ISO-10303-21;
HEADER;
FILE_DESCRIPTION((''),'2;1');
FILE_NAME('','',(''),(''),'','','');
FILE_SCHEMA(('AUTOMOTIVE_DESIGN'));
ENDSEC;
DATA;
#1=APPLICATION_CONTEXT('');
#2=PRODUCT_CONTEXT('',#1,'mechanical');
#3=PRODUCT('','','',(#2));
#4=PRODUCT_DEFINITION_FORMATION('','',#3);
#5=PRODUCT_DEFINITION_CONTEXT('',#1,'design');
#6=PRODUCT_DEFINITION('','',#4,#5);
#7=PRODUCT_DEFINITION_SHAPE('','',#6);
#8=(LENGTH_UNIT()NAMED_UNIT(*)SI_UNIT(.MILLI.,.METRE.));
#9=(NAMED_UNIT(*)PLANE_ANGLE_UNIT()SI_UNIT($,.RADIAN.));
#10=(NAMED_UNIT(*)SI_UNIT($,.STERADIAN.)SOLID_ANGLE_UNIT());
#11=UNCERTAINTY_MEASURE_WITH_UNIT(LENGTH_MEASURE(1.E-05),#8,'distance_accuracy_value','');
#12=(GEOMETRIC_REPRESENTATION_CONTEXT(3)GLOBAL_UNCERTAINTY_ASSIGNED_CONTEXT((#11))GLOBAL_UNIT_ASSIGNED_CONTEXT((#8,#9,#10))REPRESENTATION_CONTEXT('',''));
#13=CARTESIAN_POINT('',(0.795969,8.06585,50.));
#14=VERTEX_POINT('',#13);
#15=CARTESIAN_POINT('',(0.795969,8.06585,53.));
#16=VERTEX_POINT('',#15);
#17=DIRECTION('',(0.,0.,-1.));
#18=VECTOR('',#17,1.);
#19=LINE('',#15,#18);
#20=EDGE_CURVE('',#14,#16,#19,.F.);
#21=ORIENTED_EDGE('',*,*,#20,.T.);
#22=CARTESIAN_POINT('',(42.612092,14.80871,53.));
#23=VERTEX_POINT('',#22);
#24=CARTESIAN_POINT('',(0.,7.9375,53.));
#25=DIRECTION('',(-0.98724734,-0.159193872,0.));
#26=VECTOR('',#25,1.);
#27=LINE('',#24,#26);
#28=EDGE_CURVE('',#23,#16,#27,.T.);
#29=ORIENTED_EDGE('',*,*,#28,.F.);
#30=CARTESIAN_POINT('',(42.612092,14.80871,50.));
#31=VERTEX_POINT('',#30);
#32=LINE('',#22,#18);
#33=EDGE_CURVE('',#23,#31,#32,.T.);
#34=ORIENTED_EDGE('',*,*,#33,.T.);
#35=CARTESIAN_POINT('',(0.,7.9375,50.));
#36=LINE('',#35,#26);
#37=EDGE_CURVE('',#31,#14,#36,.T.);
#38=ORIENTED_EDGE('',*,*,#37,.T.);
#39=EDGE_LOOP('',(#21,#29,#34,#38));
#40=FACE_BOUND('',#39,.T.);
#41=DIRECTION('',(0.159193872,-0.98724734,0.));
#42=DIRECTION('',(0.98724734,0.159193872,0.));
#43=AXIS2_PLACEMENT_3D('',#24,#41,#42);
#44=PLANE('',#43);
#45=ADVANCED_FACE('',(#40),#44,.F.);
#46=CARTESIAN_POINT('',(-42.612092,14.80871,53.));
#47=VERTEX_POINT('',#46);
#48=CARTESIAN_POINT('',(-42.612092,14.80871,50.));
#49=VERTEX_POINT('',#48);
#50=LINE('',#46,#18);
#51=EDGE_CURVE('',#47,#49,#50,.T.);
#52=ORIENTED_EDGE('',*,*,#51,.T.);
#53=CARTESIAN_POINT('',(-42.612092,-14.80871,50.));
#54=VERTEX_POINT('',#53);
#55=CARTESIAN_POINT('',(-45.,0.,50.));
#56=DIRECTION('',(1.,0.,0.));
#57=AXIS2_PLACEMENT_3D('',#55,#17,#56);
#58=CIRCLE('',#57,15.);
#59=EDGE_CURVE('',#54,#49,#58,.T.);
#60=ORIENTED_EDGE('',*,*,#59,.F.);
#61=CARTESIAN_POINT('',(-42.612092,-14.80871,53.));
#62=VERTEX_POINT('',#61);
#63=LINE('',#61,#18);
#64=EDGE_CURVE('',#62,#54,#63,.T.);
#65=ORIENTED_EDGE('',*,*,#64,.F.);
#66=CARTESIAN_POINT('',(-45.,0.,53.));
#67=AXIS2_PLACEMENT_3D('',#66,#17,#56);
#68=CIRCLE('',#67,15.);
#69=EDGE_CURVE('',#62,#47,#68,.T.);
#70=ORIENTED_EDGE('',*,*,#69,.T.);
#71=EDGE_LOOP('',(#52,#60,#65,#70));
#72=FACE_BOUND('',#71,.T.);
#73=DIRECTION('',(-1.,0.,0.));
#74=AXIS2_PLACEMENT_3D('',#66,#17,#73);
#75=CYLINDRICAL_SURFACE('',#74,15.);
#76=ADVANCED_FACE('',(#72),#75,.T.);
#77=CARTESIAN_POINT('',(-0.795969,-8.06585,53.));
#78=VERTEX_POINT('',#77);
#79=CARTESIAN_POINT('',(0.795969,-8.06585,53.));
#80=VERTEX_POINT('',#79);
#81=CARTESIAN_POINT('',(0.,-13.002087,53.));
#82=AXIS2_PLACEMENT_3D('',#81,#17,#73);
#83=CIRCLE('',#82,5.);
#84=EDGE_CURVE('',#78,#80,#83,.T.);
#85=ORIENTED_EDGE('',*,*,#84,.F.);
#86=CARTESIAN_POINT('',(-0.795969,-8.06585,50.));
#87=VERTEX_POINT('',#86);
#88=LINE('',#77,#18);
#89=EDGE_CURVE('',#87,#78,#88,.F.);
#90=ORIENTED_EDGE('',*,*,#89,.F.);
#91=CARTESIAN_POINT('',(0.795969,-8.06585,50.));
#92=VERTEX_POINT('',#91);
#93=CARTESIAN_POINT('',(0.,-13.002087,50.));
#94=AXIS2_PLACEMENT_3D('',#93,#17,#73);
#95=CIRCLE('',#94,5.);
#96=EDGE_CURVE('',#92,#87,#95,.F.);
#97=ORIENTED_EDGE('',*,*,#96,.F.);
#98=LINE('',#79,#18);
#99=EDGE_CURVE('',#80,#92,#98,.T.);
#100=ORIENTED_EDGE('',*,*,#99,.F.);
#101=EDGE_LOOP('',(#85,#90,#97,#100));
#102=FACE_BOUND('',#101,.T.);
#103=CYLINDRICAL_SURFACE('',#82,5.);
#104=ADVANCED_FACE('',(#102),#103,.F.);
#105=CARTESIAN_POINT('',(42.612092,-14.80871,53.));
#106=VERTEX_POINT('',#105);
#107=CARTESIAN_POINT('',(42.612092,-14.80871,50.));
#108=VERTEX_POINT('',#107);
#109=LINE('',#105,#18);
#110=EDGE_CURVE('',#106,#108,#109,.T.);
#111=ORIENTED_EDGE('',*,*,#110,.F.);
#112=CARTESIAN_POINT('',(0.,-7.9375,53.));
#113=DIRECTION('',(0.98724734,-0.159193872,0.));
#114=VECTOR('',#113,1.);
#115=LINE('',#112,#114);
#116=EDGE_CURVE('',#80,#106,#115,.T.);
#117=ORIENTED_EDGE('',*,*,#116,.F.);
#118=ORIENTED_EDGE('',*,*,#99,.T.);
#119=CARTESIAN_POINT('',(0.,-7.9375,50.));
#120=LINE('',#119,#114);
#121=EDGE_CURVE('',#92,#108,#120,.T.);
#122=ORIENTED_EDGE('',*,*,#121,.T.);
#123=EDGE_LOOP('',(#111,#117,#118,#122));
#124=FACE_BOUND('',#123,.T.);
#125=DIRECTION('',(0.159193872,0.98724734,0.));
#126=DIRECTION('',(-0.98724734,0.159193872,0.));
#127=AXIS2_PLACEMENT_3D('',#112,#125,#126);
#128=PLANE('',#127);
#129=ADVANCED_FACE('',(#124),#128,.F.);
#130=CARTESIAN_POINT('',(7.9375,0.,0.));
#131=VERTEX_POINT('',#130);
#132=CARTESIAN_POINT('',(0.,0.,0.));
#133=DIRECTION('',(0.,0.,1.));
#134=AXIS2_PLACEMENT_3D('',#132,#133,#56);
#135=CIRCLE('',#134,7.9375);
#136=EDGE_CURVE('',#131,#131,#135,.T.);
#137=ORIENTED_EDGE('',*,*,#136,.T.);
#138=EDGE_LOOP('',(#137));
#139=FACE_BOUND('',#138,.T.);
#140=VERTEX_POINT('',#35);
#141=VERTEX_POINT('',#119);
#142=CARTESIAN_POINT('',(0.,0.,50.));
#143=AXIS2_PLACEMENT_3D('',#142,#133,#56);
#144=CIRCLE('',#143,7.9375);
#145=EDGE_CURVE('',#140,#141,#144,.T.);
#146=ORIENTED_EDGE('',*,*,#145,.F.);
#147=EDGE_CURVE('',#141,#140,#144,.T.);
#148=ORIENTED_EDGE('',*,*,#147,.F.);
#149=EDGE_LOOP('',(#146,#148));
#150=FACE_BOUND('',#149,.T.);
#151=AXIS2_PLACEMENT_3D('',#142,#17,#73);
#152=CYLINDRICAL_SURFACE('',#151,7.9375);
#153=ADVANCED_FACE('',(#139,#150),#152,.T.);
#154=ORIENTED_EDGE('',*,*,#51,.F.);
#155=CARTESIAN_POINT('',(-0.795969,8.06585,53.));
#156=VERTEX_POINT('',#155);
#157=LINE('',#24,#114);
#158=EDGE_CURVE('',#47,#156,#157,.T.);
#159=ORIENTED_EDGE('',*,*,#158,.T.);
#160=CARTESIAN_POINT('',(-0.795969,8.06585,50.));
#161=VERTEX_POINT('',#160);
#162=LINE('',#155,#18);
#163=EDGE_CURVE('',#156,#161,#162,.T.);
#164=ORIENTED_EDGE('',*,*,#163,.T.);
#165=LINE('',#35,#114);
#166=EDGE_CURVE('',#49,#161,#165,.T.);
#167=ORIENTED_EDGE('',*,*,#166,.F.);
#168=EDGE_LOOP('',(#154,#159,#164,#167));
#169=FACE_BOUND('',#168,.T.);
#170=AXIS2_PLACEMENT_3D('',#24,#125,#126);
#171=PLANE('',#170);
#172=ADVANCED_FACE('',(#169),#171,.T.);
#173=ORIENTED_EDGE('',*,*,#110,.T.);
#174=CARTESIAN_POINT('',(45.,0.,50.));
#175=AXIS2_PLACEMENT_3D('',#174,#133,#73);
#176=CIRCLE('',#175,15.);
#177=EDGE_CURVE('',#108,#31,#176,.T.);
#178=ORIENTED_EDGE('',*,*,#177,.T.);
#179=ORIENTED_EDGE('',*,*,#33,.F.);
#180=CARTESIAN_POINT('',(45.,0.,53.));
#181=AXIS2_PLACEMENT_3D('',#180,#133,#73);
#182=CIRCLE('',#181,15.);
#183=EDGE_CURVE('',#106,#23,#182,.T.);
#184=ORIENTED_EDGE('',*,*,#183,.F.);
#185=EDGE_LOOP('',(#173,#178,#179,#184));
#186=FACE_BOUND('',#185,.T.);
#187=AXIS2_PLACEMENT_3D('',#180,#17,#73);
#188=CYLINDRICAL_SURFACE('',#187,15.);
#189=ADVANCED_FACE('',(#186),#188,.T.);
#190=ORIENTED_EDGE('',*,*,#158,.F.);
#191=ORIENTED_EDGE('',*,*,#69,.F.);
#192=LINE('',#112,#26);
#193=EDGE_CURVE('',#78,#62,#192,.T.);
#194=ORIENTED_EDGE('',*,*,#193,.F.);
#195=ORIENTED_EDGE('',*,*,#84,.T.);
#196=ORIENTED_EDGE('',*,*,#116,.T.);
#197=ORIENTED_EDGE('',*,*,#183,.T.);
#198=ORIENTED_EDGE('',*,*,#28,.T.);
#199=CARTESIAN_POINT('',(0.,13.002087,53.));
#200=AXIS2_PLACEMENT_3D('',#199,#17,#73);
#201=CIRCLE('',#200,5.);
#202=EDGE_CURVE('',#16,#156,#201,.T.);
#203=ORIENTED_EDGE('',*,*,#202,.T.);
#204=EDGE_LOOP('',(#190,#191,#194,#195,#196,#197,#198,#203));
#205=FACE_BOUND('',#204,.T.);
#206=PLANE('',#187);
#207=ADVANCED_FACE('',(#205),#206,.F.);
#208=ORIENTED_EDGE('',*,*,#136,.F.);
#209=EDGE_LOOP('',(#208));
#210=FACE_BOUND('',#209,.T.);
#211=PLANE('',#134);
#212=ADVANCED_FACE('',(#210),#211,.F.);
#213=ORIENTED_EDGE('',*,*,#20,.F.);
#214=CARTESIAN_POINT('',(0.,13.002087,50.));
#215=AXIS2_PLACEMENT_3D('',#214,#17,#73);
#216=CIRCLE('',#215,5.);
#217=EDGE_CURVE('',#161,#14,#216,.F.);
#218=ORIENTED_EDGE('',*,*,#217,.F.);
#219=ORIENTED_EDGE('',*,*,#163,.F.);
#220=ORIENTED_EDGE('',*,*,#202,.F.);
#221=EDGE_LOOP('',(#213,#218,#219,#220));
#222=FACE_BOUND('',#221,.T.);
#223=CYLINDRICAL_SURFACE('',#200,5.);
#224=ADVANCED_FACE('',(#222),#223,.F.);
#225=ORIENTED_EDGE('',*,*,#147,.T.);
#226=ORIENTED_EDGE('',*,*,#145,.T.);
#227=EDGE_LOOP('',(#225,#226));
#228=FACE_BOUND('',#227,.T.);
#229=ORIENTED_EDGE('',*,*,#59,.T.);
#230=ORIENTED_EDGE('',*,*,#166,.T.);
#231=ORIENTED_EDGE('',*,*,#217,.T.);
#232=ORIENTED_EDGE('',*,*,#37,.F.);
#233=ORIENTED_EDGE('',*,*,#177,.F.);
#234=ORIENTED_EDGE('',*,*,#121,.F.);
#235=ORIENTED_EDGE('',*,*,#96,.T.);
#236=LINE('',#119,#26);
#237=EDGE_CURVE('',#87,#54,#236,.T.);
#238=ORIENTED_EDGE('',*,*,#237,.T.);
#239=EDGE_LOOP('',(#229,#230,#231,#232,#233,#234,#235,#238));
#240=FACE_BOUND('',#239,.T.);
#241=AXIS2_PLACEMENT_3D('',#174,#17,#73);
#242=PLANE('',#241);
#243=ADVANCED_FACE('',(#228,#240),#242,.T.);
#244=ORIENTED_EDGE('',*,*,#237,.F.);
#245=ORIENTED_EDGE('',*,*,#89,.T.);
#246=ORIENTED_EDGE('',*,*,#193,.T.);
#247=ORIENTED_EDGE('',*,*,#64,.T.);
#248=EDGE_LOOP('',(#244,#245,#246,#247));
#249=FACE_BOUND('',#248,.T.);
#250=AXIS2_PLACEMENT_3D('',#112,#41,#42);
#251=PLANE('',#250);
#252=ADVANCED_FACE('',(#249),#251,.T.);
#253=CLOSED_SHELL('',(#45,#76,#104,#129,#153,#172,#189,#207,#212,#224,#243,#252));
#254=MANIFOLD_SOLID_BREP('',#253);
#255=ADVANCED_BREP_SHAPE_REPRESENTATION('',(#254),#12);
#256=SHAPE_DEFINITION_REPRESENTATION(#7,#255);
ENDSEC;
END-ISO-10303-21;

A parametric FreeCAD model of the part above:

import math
import FreeCAD as App
import Part
import Sketcher

V = App.Vector
Q = App.Units.Quantity


def edges_at(feature, points):
    """Names of the edges that pass closest to the given points."""
    edges = feature.Shape.Edges
    near = lambda p: min(range(len(edges)), key=lambda i: edges[i].distToShape(Part.Vertex(*p))[0])
    return sorted({f"Edge{near(p) + 1}" for p in points})

doc = App.newDocument("Part")
body = doc.addObject("PartDesign::Body", "Body")

# Sketch on XY plane
sketch1 = doc.addObject("Sketcher::SketchObject", "Sketch")
body.addObject(sketch1)
sketch1.AttachmentSupport = (doc.XY_Plane, [""])
sketch1.MapMode = "FlatFace"
sketch1.addGeometry(Part.Circle(V(0, 0, 0), V(0, 0, 1), 8), False)
sketch1.addConstraint(Sketcher.Constraint("Coincident", 0, 3, -1, 1))
sketch1.addConstraint(Sketcher.Constraint("Diameter", 0, Q("15.875 mm")))
pad1 = doc.addObject("PartDesign::Pad", "Pad")
body.addObject(pad1)
pad1.Profile = sketch1
pad1.Length = 50

# Sketch on XY plane
sketch2 = doc.addObject("Sketcher::SketchObject", "Sketch001")
body.addObject(sketch2)
sketch2.AttachmentSupport = (doc.XY_Plane, [""])
sketch2.MapMode = "FlatFace"
sketch2.AttachmentOffset = App.Placement(V(0, 0, 50), App.Rotation())
sketch2.addGeometry(Part.LineSegment(V(0, 8, 0), V(0, -8, 0)), False)
sketch2.addGeometry(Part.LineSegment(V(0, -8, 0), V(43, -15, 0)), False)
sketch2.addGeometry(Part.ArcOfCircle(Part.Circle(V(45, 0, 0), V(0, 0, 1), 15), math.radians(-99), math.radians(99)), False)
sketch2.addGeometry(Part.LineSegment(V(43, 15, 0), V(0, 8, 0)), False)
sketch2.addConstraint(Sketcher.Constraint("Coincident", 0, 2, 1, 1))
sketch2.addConstraint(Sketcher.Constraint("Tangent", 1, 2, 2, 1))
sketch2.addConstraint(Sketcher.Constraint("Tangent", 2, 2, 3, 1))
sketch2.addConstraint(Sketcher.Constraint("Coincident", 3, 2, 0, 1))
sketch2.addConstraint(Sketcher.Constraint("Vertical", 0))
sketch2.addConstraint(Sketcher.Constraint("Symmetric", 0, 2, 3, 2, -1, 1))
sketch2.addConstraint(Sketcher.Constraint("PointOnObject", 2, 3, -1))
sketch2.addConstraint(Sketcher.Constraint("Radius", 2, Q("15 mm")))
sketch2.addConstraint(Sketcher.Constraint("DistanceX", -1, 1, 2, 3, Q("45 mm")))
sketch2.addConstraint(Sketcher.Constraint("DistanceY", 0, 2, 0, 1, Q("15.875 mm")))
pad2 = doc.addObject("PartDesign::Pad", "Pad001")
body.addObject(pad2)
pad2.Profile = sketch2
pad2.Length = 3
doc.recompute()

mirrored = doc.addObject("PartDesign::Mirrored", "Mirrored")
body.addObject(mirrored)
mirrored.Originals = [pad2]
mirrored.MirrorPlane = (doc.YZ_Plane, [""])
body.Tip = mirrored
doc.recompute()

fillet = doc.addObject("PartDesign::Fillet", "Fillet")
body.addObject(fillet)
fillet.Base = (mirrored, edges_at(mirrored, [(0, 7.938, 51.5), (0, -7.938, 51.5)]))
fillet.Radius = 5

doc.recompute()
